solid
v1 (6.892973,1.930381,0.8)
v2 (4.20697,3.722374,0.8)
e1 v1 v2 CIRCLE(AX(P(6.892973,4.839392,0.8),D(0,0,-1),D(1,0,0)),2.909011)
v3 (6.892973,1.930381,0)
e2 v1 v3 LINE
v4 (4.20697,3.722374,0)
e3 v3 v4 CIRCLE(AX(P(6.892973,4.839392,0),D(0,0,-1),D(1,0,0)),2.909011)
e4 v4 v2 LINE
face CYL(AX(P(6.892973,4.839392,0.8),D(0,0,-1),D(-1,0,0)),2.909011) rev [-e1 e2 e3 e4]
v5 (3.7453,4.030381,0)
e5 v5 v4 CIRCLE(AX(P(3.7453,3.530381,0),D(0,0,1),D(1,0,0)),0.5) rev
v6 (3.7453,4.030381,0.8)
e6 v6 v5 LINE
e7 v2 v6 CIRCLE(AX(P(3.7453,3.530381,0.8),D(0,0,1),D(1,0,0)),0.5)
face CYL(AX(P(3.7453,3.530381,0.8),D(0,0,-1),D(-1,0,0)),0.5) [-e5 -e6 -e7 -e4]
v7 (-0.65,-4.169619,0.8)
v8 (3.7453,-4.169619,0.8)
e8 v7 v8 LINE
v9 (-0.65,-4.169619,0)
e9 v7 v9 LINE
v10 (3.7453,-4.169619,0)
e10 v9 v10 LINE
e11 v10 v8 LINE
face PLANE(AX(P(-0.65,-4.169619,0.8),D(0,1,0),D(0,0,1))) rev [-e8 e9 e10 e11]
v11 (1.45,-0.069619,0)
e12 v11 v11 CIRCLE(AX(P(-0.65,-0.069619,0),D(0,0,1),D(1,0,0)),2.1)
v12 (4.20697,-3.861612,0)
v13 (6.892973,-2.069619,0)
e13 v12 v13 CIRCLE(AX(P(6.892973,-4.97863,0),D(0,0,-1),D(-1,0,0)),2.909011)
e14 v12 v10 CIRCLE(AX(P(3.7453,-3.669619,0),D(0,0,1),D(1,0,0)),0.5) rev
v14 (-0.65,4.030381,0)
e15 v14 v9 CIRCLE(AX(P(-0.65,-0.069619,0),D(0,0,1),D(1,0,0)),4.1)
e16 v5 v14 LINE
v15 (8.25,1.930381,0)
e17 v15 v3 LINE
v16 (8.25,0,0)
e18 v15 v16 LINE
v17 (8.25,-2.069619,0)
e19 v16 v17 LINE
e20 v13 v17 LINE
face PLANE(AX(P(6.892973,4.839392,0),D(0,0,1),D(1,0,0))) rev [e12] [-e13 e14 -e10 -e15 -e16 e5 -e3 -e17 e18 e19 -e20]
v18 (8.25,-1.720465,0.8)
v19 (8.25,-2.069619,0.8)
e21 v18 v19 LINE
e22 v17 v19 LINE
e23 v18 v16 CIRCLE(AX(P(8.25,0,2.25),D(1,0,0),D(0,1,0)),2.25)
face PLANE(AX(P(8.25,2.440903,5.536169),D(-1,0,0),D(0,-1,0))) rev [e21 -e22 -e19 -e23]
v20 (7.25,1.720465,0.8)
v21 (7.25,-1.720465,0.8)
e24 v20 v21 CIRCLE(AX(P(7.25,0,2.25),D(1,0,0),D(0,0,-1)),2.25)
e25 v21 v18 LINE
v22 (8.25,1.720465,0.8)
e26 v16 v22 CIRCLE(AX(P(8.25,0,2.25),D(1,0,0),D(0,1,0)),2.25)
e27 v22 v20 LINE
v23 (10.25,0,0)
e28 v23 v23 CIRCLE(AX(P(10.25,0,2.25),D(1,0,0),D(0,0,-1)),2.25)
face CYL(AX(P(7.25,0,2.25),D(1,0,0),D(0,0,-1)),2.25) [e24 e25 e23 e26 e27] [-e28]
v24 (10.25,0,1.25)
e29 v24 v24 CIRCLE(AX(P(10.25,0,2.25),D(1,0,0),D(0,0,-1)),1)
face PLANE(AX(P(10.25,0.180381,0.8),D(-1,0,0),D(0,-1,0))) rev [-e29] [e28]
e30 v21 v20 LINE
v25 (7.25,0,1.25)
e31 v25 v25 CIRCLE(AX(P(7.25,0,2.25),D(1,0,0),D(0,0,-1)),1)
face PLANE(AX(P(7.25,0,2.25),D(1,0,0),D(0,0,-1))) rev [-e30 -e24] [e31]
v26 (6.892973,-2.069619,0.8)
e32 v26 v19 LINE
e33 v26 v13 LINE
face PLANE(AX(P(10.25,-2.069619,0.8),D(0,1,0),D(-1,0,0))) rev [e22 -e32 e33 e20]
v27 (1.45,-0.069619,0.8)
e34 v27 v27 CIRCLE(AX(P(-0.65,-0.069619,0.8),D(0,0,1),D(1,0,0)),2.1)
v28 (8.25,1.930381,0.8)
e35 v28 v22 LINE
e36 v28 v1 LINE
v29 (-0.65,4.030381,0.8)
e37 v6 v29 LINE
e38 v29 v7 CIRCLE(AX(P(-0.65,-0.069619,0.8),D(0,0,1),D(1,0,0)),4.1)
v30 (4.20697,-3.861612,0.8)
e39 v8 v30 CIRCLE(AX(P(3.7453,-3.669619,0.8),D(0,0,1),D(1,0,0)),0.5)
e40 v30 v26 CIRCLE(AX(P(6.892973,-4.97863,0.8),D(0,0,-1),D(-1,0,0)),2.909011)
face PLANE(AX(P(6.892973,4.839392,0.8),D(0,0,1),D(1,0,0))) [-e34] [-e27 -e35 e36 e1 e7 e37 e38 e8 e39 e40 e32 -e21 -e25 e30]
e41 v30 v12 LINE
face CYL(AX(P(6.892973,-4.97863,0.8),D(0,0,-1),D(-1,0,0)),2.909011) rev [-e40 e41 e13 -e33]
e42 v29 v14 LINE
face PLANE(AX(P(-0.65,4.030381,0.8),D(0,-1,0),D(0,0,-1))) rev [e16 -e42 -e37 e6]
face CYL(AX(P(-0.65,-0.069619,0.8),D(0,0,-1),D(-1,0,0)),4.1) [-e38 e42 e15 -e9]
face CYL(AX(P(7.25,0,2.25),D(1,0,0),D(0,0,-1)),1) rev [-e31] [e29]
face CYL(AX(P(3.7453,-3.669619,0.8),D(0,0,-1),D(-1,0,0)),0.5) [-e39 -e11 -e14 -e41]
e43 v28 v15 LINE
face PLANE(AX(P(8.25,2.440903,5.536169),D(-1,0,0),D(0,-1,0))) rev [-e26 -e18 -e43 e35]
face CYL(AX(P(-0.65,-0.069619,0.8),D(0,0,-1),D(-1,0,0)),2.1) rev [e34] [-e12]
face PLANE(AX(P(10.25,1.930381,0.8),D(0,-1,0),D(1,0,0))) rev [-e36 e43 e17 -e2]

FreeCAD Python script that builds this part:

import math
import FreeCAD as App
import Part
import Sketcher
from FreeCAD import Vector


def edges_at(feature, points):
    """Names of the edges that pass closest to the given points."""
    edges = feature.Shape.Edges
    near = lambda p: min(range(len(edges)), key=lambda i: edges[i].distToShape(Part.Vertex(*p))[0])
    return sorted({f"Edge{near(p) + 1}" for p in points})


def add_polygon(sketch, points):
    """Adds a closed chain of lines whose ends are joined by coincident constraints."""
    first, n = sketch.GeometryCount, len(points)
    for a, b in zip(points, points[1:] + points[:1]):
        sketch.addGeometry(Part.LineSegment(App.Vector(*a, 0), App.Vector(*b, 0)), False)
    for i in range(n):
        sketch.addConstraint(Sketcher.Constraint("Coincident", first + i, 2, first + (i + 1) % n, 1))

doc = App.newDocument("Part")
params = doc.addObject("Spreadsheet::Sheet", "Params")
for row, (alias, value) in enumerate([
    ("sketch1_diameter", "4.2 mm"),
    ("sketch1_radius", "4.1 mm"),
    ("sketch1_height", "4 mm"),
    ("pad1_length", "0.8 mm"),
    ("sketch2_diameter", "2 mm"),
    ("sketch2_diameter2", "4.5 mm"),
    ("pad2_length", "3 mm"),
    ("fillet_radius", "0.5 mm"),
    ("sketch3_diameter", "4.5 mm"),
    ("pocket1_length", "2 mm"),
], start=1):
    params.set(f"A{row}", alias)
    params.set(f"B{row}", "=" + value)
    params.setAlias(f"B{row}", alias)

body = doc.addObject("PartDesign::Body", "Body")

# Sketch on XY plane
sketch1 = body.newObject("Sketcher::SketchObject", "Sketch")
sketch1.AttachmentSupport = (doc.getObject("XY_Plane"), [""])
sketch1.MapMode = "FlatFace"
sketch1.addGeometry(Part.LineSegment(Vector(4.1, 4, 0), Vector(-0.7, 4, 0)), False)
sketch1.addGeometry(Part.ArcOfCircle(Part.Circle(Vector(-0.7, -0.1, 0), Vector(0, 0, 1), 4.1), math.radians(90), math.radians(270)), False)
sketch1.addGeometry(Part.LineSegment(Vector(-0.7, -4.2, 0), Vector(4.1, -4.2, 0)), False)
sketch1.addGeometry(Part.ArcOfCircle(Part.Circle(Vector(6.9, -5, 0), Vector(0, 0, 1), 2.9), math.radians(90), math.radians(164)), False)
sketch1.addGeometry(Part.LineSegment(Vector(6.9, -2.1, 0), Vector(10.2, -2.1, 0)), False)
sketch1.addGeometry(Part.LineSegment(Vector(10.2, -2.1, 0), Vector(10.2, 1.9, 0)), False)
sketch1.addGeometry(Part.LineSegment(Vector(10.2, 1.9, 0), Vector(6.9, 1.9, 0)), False)
sketch1.addGeometry(Part.ArcOfCircle(Part.Circle(Vector(6.9, 4.8, 0), Vector(0, 0, 1), 2.9), math.radians(-164), math.radians(-90)), False)
sketch1.addGeometry(Part.Circle(Vector(-0.7, -0.1, 0), Vector(0, 0, 1), 2.1), False)
sketch1.addConstraint(Sketcher.Constraint("Tangent", 0, 2, 1, 1))
sketch1.addConstraint(Sketcher.Constraint("Tangent", 1, 2, 2, 1))
sketch1.addConstraint(Sketcher.Constraint("Coincident", 2, 2, 3, 2))
sketch1.addConstraint(Sketcher.Constraint("Tangent", 3, 1, 4, 1))
sketch1.addConstraint(Sketcher.Constraint("Coincident", 4, 2, 5, 1))
sketch1.addConstraint(Sketcher.Constraint("Coincident", 5, 2, 6, 1))
sketch1.addConstraint(Sketcher.Constraint("Tangent", 6, 2, 7, 2))
sketch1.addConstraint(Sketcher.Constraint("Coincident", 7, 1, 0, 1))
sketch1.addConstraint(Sketcher.Constraint("Horizontal", 0))
sketch1.addConstraint(Sketcher.Constraint("Horizontal", 2))
sketch1.addConstraint(Sketcher.Constraint("Horizontal", 4))
sketch1.addConstraint(Sketcher.Constraint("Vertical", 5))
sketch1.addConstraint(Sketcher.Constraint("Horizontal", 6))
sketch1.addConstraint(Sketcher.Constraint("Coincident", 8, 3, 1, 3))
sketch1.addConstraint(Sketcher.Constraint("Equal", 3, 7))
sketch1.addConstraint(Sketcher.Constraint("Vertical", 3, 3, 7, 3))
sketch1.addConstraint(Sketcher.Constraint("Vertical", 2, 2, 7, 1))
sketch1.addConstraint(Sketcher.Constraint("Diameter", 8, 4.2))
sketch1.addConstraint(Sketcher.Constraint("Radius", 1, 4.1))
sketch1.addConstraint(Sketcher.Constraint("DistanceY", 5, 1, 5, 2, 4.0))
sketch1.addConstraint(Sketcher.Constraint("DistanceX", 1, 3, 4, 2, 10.9))
sketch1.addConstraint(Sketcher.Constraint("DistanceX", 1, 3, -1, 1, 0.65))
sketch1.addConstraint(Sketcher.Constraint("Radius", 3, 2.909011))
sketch1.addConstraint(Sketcher.Constraint("DistanceX", 0, 2, 0, 1, 4.748721))
sketch1.addConstraint(Sketcher.Constraint("DistanceY", 1, 3, -1, 1, 0.069619))
sketch1.setExpression("Constraints[17]", "Params.sketch1_diameter")
sketch1.setExpression("Constraints[18]", "Params.sketch1_radius")
sketch1.setExpression("Constraints[19]", "Params.sketch1_height")
pad1 = body.newObject("PartDesign::Pad", "Pad")
pad1.Profile = sketch1
pad1.setExpression("Length", "Params.pad1_length")

# Sketch on YZ plane
sketch2 = body.newObject("Sketcher::SketchObject", "Sketch001")
sketch2.AttachmentSupport = (doc.getObject("YZ_Plane"), [""])
sketch2.MapMode = "FlatFace"
sketch2.AttachmentOffset = App.Placement(Vector(0, 0, 10.25), App.Rotation())
sketch2.addGeometry(Part.Circle(Vector(0, 2.2, 0), Vector(0, 0, 1), 2.2), False)
sketch2.addGeometry(Part.Circle(Vector(0, 2.2, 0), Vector(0, 0, 1), 1), False)
sketch2.addConstraint(Sketcher.Constraint("Coincident", 1, 3, 0, 3))
sketch2.addConstraint(Sketcher.Constraint("PointOnObject", 0, 3, -2))
sketch2.addConstraint(Sketcher.Constraint("Diameter", 1, 2.0))
sketch2.addConstraint(Sketcher.Constraint("Diameter", 0, 4.5))
sketch2.addConstraint(Sketcher.Constraint("DistanceY", -1, 1, 0, 3, 2.25))
sketch2.setExpression("Constraints[2]", "Params.sketch2_diameter")
sketch2.setExpression("Constraints[3]", "Params.sketch2_diameter2")
pad2 = body.newObject("PartDesign::Pad", "Pad001")
pad2.Profile = sketch2
pad2.setExpression("Length", "Params.pad2_length")
pad2.Reversed = True
doc.recompute()

fillet = body.newObject("PartDesign::Fillet", "Fillet")
fillet.Base = (pad2, edges_at(pad2, [(4.099, -4.17, 0.4), (4.099, 4.03, 0.4)]))
fillet.setExpression("Radius", "Params.fillet_radius")

# Sketch on YZ plane
sketch3 = body.newObject("Sketcher::SketchObject", "Sketch002")
sketch3.AttachmentSupport = (doc.getObject("YZ_Plane"), [""])
sketch3.MapMode = "FlatFace"
sketch3.AttachmentOffset = App.Placement(Vector(0, 0, 10.25), App.Rotation())
add_polygon(sketch3, [(2.4, 5.5), (-3, 5.5), (-3, -1.4), (2.4, -1.4)])  # lines 0-3
sketch3.addGeometry(Part.Circle(Vector(0, 2.2, 0), Vector(0, 0, 1), 2.2), False)  # 4
sketch3.addConstraint(Sketcher.Constraint("Horizontal", 0))
sketch3.addConstraint(Sketcher.Constraint("Vertical", 1))
sketch3.addConstraint(Sketcher.Constraint("Horizontal", 2))
sketch3.addConstraint(Sketcher.Constraint("Vertical", 3))
sketch3.addConstraint(Sketcher.Constraint("PointOnObject", 4, 3, -2))
sketch3.addConstraint(Sketcher.Constraint("Diameter", 4, 4.5))
sketch3.addConstraint(Sketcher.Constraint("DistanceY", -1, 1, 4, 3, 2.25))
sketch3.addConstraint(Sketcher.Constraint("DistanceX", 0, 2, 0, 1, 5.392212))
sketch3.addConstraint(Sketcher.Constraint("DistanceY", 1, 2, 1, 1, 6.892182))
sketch3.addConstraint(Sketcher.Constraint("DistanceX", 0, 2, -1, 1, 2.951309))
sketch3.addConstraint(Sketcher.Constraint("DistanceY", -1, 1, 0, 2, 5.536169))
sketch3.setExpression("Constraints[9]", "Params.sketch3_diameter")
pocket1 = body.newObject("PartDesign::Pocket", "Pocket")
pocket1.Profile = sketch3
pocket1.setExpression("Length", "Params.pocket1_length")

doc.recompute()
